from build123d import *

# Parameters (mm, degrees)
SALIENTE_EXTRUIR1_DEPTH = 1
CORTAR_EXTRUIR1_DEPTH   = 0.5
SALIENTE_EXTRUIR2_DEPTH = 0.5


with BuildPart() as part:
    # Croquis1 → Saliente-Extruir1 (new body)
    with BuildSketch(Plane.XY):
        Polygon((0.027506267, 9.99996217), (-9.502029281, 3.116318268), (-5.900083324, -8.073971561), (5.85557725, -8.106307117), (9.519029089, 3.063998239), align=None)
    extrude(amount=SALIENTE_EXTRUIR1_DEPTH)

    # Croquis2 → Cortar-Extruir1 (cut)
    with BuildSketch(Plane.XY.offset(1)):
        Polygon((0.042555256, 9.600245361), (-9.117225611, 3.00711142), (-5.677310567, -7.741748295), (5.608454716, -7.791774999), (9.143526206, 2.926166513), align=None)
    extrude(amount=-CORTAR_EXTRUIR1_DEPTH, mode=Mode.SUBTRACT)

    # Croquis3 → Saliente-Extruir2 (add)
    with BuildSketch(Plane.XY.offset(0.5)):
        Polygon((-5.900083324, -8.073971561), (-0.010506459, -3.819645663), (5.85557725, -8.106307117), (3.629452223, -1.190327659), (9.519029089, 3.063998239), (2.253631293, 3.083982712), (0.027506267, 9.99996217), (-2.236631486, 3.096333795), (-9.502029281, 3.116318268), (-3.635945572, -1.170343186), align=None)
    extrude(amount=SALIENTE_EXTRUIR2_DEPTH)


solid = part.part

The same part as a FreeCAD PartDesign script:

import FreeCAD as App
import Part
import Sketcher

V = App.Vector

doc = App.newDocument("Part")
params = doc.addObject("Spreadsheet::Sheet", "Params")
for row, (alias, value) in enumerate([
    ("pad1_length", "1 mm"),
    ("pocket1_length", "0.5 mm"),
    ("pad2_length", "0.5 mm"),
], start=1):
    params.set(f"A{row}", alias)
    params.set(f"B{row}", "=" + value)
    params.setAlias(f"B{row}", alias)

body = doc.addObject("PartDesign::Body", "Body")

sketch1 = body.newObject("Sketcher::SketchObject", "Sketch")
sketch1.AttachmentSupport = (doc.getObject("XY_Plane"), [""])
sketch1.MapMode = "FlatFace"
sketch1.addGeometry([
    Part.LineSegment(V(0, 10, 0), V(-10, 3, 0)),
    Part.LineSegment(V(-10, 3, 0), V(-6, -8, 0)),
    Part.LineSegment(V(-6, -8, 0), V(6, -8, 0)),
    Part.LineSegment(V(6, -8, 0), V(10, 3, 0)),
    Part.LineSegment(V(10, 3, 0), V(0, 10, 0)),
], False)
sketch1.addConstraint([
    Sketcher.Constraint("Coincident", 0, 2, 1, 1),
    Sketcher.Constraint("Coincident", 1, 2, 2, 1),
    Sketcher.Constraint("Coincident", 2, 2, 3, 1),
    Sketcher.Constraint("Coincident", 3, 2, 4, 1),
    Sketcher.Constraint("Coincident", 4, 2, 0, 1),
    Sketcher.Constraint("Equal", 0, 1),
    Sketcher.Constraint("Equal", 1, 2),
    Sketcher.Constraint("Equal", 2, 3),
    Sketcher.Constraint("Equal", 3, 4),
    Sketcher.Constraint("DistanceY", -1, 1, 3, 2, 3.063998),
    Sketcher.Constraint("DistanceX", 0, 2, -1, 1, 9.502029),
    Sketcher.Constraint("DistanceY", -1, 1, 0, 2, 3.116318),
    Sketcher.Constraint("DistanceY", 1, 2, -1, 1, 8.073972),
    Sketcher.Constraint("DistanceX", -1, 1, 3, 2, 9.519029),
    Sketcher.Constraint("DistanceX", 1, 2, 2, 2, 11.755661),
])
pad1 = body.newObject("PartDesign::Pad", "Pad")
pad1.Profile = sketch1
pad1.setExpression("Length", "Params.pad1_length")

sketch2 = body.newObject("Sketcher::SketchObject", "Sketch001")
sketch2.AttachmentSupport = (doc.getObject("XY_Plane"), [""])
sketch2.MapMode = "FlatFace"
sketch2.AttachmentOffset = App.Placement(V(0, 0, 1), App.Rotation())
sketch2.addGeometry([
    Part.LineSegment(V(0, 10, 0), V(-9, 3, 0)),
    Part.LineSegment(V(-9, 3, 0), V(-6, -8, 0)),
    Part.LineSegment(V(-6, -8, 0), V(6, -8, 0)),
    Part.LineSegment(V(6, -8, 0), V(9, 3, 0)),
    Part.LineSegment(V(9, 3, 0), V(0, 10, 0)),
], False)
sketch2.addConstraint([
    Sketcher.Constraint("Coincident", 0, 2, 1, 1),
    Sketcher.Constraint("Coincident", 1, 2, 2, 1),
    Sketcher.Constraint("Coincident", 2, 2, 3, 1),
    Sketcher.Constraint("Coincident", 3, 2, 4, 1),
    Sketcher.Constraint("Coincident", 4, 2, 0, 1),
    Sketcher.Constraint("Equal", 0, 1),
    Sketcher.Constraint("Equal", 1, 2),
    Sketcher.Constraint("Equal", 2, 3),
    Sketcher.Constraint("Equal", 3, 4),
    Sketcher.Constraint("DistanceX", 4, 2, 2, 2, 5.565899),
    Sketcher.Constraint("DistanceY", -1, 1, 0, 2, 3.007111),
    Sketcher.Constraint("DistanceX", 1, 2, -1, 1, 5.677311),
    Sketcher.Constraint("DistanceY", 1, 2, -1, 1, 7.741748),
    Sketcher.Constraint("DistanceX", 0, 2, 2, 2, 14.72568),
    Sketcher.Constraint("DistanceX", 2, 2, 3, 2, 3.535071),
])
pocket1 = body.newObject("PartDesign::Pocket", "Pocket")
pocket1.Profile = sketch2
pocket1.setExpression("Length", "Params.pocket1_length")

sketch3 = body.newObject("Sketcher::SketchObject", "Sketch002")
sketch3.AttachmentSupport = (doc.getObject("XY_Plane"), [""])
sketch3.MapMode = "FlatFace"
sketch3.AttachmentOffset = App.Placement(V(0, 0, 0.5), App.Rotation())
sketch3.addGeometry([
    Part.LineSegment(V(-6, -8, 0), V(0, -4, 0)),
    Part.LineSegment(V(0, -4, 0), V(6, -8, 0)),
    Part.LineSegment(V(6, -8, 0), V(4, -1, 0)),
    Part.LineSegment(V(4, -1, 0), V(10, 3, 0)),
    Part.LineSegment(V(10, 3, 0), V(2, 3, 0)),
    Part.LineSegment(V(2, 3, 0), V(0, 10, 0)),
    Part.LineSegment(V(0, 10, 0), V(-2, 3, 0)),
    Part.LineSegment(V(-2, 3, 0), V(-10, 3, 0)),
    Part.LineSegment(V(-10, 3, 0), V(-4, -1, 0)),
    Part.LineSegment(V(-4, -1, 0), V(-6, -8, 0)),
], False)
sketch3.addConstraint([
    Sketcher.Constraint("Coincident", 0, 2, 1, 1),
    Sketcher.Constraint("Coincident", 1, 2, 2, 1),
    Sketcher.Constraint("Coincident", 2, 2, 3, 1),
    Sketcher.Constraint("Coincident", 3, 2, 4, 1),
    Sketcher.Constraint("Coincident", 4, 2, 5, 1),
    Sketcher.Constraint("Coincident", 5, 2, 6, 1),
    Sketcher.Constraint("Coincident", 6, 2, 7, 1),
    Sketcher.Constraint("Coincident", 7, 2, 8, 1),
    Sketcher.Constraint("Coincident", 8, 2, 9, 1),
    Sketcher.Constraint("Coincident", 9, 2, 0, 1),
    Sketcher.Constraint("Parallel", 0, 3),
    Sketcher.Constraint("Parallel", 2, 5),
    Sketcher.Constraint("Parallel", 4, 7),
    Sketcher.Constraint("Parallel", 1, 8),
    Sketcher.Constraint("Parallel", 6, 9),
    Sketcher.Constraint("Equal", 0, 1),
    Sketcher.Constraint("Equal", 1, 2),
    Sketcher.Constraint("Equal", 2, 3),
    Sketcher.Constraint("Equal", 3, 4),
    Sketcher.Constraint("Equal", 4, 5),
    Sketcher.Constraint("Equal", 5, 6),
    Sketcher.Constraint("Equal", 6, 7),
    Sketcher.Constraint("Equal", 7, 8),
    Sketcher.Constraint("Equal", 8, 9),
    Sketcher.Constraint("DistanceY", -1, 1, 3, 2, 3.063998),
    Sketcher.Constraint("DistanceX", -1, 1, 3, 2, 9.519029),
    Sketcher.Constraint("DistanceX", -1, 1, 4, 2, 2.253631),
    Sketcher.Constraint("DistanceX", 6, 2, -1, 1, 2.236631),
    Sketcher.Constraint("DistanceY", -1, 1, 7, 2, 3.116318),
    Sketcher.Constraint("DistanceY", 9, 2, -1, 1, 8.073972),
])
pad2 = body.newObject("PartDesign::Pad", "Pad001")
pad2.Profile = sketch3
pad2.setExpression("Length", "Params.pad2_length")

doc.recompute()
